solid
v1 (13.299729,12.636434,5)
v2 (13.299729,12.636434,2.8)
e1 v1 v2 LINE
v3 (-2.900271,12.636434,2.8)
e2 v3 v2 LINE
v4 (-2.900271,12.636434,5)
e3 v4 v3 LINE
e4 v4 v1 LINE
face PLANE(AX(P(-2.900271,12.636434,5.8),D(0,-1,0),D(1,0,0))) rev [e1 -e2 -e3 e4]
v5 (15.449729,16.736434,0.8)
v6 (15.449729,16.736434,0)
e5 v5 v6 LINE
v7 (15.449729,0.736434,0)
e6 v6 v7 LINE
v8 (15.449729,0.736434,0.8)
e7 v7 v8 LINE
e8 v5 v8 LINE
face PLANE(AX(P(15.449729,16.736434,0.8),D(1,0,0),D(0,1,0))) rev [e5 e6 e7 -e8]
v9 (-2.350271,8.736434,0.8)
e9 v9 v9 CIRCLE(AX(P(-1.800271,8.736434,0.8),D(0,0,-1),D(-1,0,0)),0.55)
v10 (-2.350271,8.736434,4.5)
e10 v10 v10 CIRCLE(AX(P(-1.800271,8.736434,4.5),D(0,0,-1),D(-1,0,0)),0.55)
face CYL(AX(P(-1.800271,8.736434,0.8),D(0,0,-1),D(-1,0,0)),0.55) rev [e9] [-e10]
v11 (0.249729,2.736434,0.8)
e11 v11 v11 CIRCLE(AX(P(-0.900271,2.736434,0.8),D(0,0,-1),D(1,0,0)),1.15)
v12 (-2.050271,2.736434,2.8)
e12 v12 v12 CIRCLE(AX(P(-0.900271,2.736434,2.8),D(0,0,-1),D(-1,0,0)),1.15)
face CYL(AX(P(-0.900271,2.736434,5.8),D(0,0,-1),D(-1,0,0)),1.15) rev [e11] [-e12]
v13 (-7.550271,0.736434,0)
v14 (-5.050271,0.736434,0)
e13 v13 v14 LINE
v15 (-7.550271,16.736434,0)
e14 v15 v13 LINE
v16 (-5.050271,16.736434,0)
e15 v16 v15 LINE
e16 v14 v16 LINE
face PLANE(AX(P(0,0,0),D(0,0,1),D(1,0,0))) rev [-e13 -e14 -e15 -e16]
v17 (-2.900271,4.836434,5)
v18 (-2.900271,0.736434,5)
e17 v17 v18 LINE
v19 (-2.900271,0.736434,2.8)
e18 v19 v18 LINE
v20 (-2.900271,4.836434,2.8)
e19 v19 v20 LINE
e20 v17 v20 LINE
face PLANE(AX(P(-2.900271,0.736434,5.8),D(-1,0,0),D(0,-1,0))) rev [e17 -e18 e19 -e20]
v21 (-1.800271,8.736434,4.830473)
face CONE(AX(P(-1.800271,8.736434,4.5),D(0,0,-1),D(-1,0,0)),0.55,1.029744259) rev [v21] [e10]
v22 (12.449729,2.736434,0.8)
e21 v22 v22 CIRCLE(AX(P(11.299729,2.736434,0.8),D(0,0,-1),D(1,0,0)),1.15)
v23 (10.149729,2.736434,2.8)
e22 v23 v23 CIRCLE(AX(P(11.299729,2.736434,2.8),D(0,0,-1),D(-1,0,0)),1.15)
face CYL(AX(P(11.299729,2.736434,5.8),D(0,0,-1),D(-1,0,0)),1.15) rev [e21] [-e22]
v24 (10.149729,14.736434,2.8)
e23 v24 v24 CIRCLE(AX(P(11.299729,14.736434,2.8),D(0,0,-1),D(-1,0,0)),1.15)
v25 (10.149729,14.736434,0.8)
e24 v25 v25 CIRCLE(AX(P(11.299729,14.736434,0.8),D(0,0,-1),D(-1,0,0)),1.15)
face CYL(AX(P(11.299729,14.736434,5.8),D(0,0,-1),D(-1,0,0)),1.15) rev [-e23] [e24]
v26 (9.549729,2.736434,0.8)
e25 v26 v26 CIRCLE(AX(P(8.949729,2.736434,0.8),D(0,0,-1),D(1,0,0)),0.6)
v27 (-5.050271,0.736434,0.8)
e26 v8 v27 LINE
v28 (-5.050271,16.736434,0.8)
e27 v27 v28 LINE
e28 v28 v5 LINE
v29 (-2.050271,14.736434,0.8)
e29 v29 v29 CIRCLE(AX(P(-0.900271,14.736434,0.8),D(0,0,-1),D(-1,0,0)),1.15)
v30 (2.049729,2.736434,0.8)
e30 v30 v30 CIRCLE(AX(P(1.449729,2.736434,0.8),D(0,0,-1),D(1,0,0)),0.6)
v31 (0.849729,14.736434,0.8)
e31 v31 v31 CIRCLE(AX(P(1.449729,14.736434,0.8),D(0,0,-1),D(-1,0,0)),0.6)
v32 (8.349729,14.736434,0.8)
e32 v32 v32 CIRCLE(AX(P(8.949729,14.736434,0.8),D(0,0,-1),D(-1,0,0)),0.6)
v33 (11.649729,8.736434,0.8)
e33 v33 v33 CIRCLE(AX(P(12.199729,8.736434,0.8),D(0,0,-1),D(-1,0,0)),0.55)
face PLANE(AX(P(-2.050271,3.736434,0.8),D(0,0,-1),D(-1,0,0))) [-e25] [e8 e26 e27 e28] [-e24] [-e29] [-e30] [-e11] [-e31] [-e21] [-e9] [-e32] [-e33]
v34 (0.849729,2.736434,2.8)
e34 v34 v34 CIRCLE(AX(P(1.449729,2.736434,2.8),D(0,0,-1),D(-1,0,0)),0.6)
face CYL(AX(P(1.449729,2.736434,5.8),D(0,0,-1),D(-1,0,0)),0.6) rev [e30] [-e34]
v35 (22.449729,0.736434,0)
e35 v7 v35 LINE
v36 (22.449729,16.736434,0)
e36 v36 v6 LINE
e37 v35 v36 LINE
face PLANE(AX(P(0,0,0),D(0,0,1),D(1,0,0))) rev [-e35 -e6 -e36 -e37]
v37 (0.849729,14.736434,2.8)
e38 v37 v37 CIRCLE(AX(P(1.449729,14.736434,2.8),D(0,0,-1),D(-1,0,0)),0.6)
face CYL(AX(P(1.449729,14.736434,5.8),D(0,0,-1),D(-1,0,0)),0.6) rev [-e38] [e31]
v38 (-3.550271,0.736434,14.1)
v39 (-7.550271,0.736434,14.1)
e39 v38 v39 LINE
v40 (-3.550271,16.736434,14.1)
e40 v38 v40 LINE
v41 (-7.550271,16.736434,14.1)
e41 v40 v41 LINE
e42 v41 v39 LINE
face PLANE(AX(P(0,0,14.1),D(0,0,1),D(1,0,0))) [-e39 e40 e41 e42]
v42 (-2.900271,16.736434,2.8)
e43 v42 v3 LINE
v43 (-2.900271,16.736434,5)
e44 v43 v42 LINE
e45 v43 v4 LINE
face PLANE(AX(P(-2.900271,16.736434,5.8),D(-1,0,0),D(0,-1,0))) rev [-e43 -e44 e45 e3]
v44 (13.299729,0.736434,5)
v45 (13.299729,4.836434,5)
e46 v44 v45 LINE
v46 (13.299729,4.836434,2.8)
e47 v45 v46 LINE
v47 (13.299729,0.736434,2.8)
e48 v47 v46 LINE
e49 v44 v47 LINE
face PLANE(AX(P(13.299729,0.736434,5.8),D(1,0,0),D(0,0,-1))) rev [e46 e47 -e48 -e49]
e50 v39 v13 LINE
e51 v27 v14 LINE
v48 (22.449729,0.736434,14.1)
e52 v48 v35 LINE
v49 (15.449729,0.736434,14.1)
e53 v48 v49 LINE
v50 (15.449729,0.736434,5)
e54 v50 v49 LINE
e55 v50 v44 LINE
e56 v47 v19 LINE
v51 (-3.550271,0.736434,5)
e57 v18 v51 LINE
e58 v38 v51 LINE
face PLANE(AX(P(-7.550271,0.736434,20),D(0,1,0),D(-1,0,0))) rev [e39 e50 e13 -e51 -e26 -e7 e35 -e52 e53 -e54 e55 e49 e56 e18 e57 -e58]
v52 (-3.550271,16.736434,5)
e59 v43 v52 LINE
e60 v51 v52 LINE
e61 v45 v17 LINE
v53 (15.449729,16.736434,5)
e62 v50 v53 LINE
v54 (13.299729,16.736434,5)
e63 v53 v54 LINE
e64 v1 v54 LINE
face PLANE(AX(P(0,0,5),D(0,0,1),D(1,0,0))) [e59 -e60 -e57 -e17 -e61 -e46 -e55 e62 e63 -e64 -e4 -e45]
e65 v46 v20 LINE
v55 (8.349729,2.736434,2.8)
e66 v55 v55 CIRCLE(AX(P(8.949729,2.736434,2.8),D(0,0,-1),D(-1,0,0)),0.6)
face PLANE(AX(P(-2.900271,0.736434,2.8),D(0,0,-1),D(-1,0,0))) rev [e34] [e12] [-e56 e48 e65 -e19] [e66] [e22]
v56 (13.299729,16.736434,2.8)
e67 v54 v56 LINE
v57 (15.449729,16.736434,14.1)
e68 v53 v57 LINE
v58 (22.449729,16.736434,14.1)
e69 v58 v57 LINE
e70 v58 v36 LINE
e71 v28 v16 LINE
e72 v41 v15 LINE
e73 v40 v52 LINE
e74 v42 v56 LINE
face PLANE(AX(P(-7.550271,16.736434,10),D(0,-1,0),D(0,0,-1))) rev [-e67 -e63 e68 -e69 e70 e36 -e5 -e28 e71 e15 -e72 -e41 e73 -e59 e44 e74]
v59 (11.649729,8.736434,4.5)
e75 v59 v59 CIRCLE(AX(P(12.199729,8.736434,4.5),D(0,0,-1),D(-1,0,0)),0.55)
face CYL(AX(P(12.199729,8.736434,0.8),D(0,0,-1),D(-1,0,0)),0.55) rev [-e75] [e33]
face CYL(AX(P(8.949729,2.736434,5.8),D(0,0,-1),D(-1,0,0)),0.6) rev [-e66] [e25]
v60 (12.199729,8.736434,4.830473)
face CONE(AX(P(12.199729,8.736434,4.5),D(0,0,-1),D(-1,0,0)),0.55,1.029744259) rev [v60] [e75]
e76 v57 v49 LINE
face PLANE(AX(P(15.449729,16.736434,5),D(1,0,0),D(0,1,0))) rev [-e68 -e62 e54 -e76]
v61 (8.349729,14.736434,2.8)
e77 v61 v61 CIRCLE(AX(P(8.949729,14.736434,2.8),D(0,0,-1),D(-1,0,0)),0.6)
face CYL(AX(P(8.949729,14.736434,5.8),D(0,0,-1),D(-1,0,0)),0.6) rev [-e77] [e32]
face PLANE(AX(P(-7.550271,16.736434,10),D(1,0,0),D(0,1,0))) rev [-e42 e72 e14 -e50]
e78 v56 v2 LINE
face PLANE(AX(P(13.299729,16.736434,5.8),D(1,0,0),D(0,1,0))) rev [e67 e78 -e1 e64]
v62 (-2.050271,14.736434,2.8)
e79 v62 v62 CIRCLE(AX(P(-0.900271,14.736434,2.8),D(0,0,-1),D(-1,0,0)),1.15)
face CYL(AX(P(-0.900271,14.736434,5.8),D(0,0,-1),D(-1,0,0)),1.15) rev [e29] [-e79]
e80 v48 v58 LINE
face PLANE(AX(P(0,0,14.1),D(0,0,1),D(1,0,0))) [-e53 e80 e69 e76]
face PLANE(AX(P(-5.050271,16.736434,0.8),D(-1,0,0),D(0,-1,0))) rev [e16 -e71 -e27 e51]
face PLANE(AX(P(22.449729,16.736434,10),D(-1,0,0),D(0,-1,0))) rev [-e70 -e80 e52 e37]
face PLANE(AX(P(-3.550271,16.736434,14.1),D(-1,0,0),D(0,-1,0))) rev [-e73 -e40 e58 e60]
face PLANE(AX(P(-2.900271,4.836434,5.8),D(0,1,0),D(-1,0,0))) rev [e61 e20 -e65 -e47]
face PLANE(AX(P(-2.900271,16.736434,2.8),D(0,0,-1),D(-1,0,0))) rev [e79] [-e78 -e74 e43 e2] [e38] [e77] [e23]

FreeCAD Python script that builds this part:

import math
import FreeCAD as App
import Part
import Sketcher

V = App.Vector
Q = App.Units.Quantity

doc = App.newDocument("Part")
body = doc.addObject("PartDesign::Body", "Body")

# Sketch on XY plane
sketch1 = doc.addObject("Sketcher::SketchObject", "Sketch")
body.addObject(sketch1)
sketch1.AttachmentSupport = (doc.XY_Plane, [""])
sketch1.MapMode = "FlatFace"
sketch1.addGeometry(Part.LineSegment(V(-8, 17, 0), V(-8, -11, 0)), False)
sketch1.addGeometry(Part.LineSegment(V(-8, -11, 0), V(22, -11, 0)), False)
sketch1.addGeometry(Part.LineSegment(V(22, -11, 0), V(22, 17, 0)), False)
sketch1.addGeometry(Part.LineSegment(V(22, 17, 0), V(-8, 17, 0)), False)
sketch1.addConstraint(Sketcher.Constraint("Coincident", 0, 2, 1, 1))
sketch1.addConstraint(Sketcher.Constraint("Coincident", 1, 2, 2, 1))
sketch1.addConstraint(Sketcher.Constraint("Coincident", 2, 2, 3, 1))
sketch1.addConstraint(Sketcher.Constraint("Coincident", 3, 2, 0, 1))
sketch1.addConstraint(Sketcher.Constraint("Vertical", 0))
sketch1.addConstraint(Sketcher.Constraint("Horizontal", 1))
sketch1.addConstraint(Sketcher.Constraint("Vertical", 2))
sketch1.addConstraint(Sketcher.Constraint("Horizontal", 3))
sketch1.addConstraint(Sketcher.Constraint("DistanceX", 1, 1, 1, 2, Q("30 mm")))
sketch1.addConstraint(Sketcher.Constraint("DistanceY", 0, 2, 0, 1, Q("28 mm")))
sketch1.addConstraint(Sketcher.Constraint("DistanceX", 0, 2, -1, 1, Q("7.550271 mm")))
sketch1.addConstraint(Sketcher.Constraint("DistanceY", 0, 2, -1, 1, Q("11.263566 mm")))
pad1 = doc.addObject("PartDesign::Pad", "Pad")
body.addObject(pad1)
pad1.Profile = sketch1
pad1.Length = 10

# Sketch on XY plane
sketch2 = doc.addObject("Sketcher::SketchObject", "Sketch001")
body.addObject(sketch2)
sketch2.AttachmentSupport = (doc.XY_Plane, [""])
sketch2.MapMode = "FlatFace"
sketch2.addGeometry(Part.LineSegment(V(-5.1, 16.7, 0), V(15.4, 16.7, 0)), False)
sketch2.addGeometry(Part.LineSegment(V(15.4, 16.7, 0), V(15.4, 3.7, 0)), False)
sketch2.addGeometry(Part.ArcOfCircle(Part.Circle(V(12.4, 3.7, 0), V(0, 0, 1), 3), math.radians(-90), math.radians(0)), False)
sketch2.addGeometry(Part.LineSegment(V(12.4, 0.7, 0), V(-2.1, 0.7, 0)), False)
sketch2.addGeometry(Part.ArcOfCircle(Part.Circle(V(-2.1, 3.7, 0), V(0, 0, 1), 3), math.radians(180), math.radians(270)), False)
sketch2.addGeometry(Part.LineSegment(V(-5.1, 3.7, 0), V(-5.1, 16.7, 0)), False)
sketch2.addConstraint(Sketcher.Constraint("Coincident", 0, 2, 1, 1))
sketch2.addConstraint(Sketcher.Constraint("Tangent", 1, 2, 2, 2))
sketch2.addConstraint(Sketcher.Constraint("Tangent", 2, 1, 3, 1))
sketch2.addConstraint(Sketcher.Constraint("Tangent", 3, 2, 4, 2))
sketch2.addConstraint(Sketcher.Constraint("Tangent", 4, 1, 5, 1))
sketch2.addConstraint(Sketcher.Constraint("Coincident", 5, 2, 0, 1))
sketch2.addConstraint(Sketcher.Constraint("Horizontal", 0))
sketch2.addConstraint(Sketcher.Constraint("Vertical", 1))
sketch2.addConstraint(Sketcher.Constraint("Horizontal", 3))
sketch2.addConstraint(Sketcher.Constraint("Vertical", 5))
sketch2.addConstraint(Sketcher.Constraint("Equal", 2, 4))
sketch2.addConstraint(Sketcher.Constraint("Radius", 2, Q("3 mm")))
sketch2.addConstraint(Sketcher.Constraint("DistanceY", 1, 2, 1, 1, Q("13 mm")))
sketch2.addConstraint(Sketcher.Constraint("DistanceX", 0, 1, 0, 2, Q("20.5 mm")))
sketch2.addConstraint(Sketcher.Constraint("DistanceX", -1, 1, 2, 3, Q("12.449729 mm")))
sketch2.addConstraint(Sketcher.Constraint("DistanceY", -1, 1, 2, 3, Q("3.736434 mm")))
pocket1 = doc.addObject("PartDesign::Pocket", "Pocket")
body.addObject(pocket1)
pocket1.Profile = sketch2
pocket1.Length = 0.8
pocket1.Reversed = True

# Sketch on XY plane
sketch3 = doc.addObject("Sketcher::SketchObject", "Sketch002")
body.addObject(sketch3)
sketch3.AttachmentSupport = (doc.XY_Plane, [""])
sketch3.MapMode = "FlatFace"
sketch3.AttachmentOffset = App.Placement(V(0, 0, 0.8), App.Rotation())
sketch3.addGeometry(Part.Circle(V(12.2, 8.7, 0), V(0, 0, 1), 0.6), False)
sketch3.addGeometry(Part.Circle(V(-1.8, 8.7, 0), V(0, 0, 1), 0.6), False)
sketch3.addConstraint(Sketcher.Constraint("Equal", 0, 1))
sketch3.addConstraint(Sketcher.Constraint("Horizontal", 0, 3, 1, 3))
sketch3.addConstraint(Sketcher.Constraint("Diameter", 0, Q("1.1 mm")))
sketch3.addConstraint(Sketcher.Constraint("DistanceX", 1, 3, 0, 3, Q("14 mm")))
sketch3.addConstraint(Sketcher.Constraint("DistanceX", -1, 1, 0, 3, Q("12.199729 mm")))
sketch3.addConstraint(Sketcher.Constraint("DistanceY", -1, 1, 0, 3, Q("8.736434 mm")))
doc.recompute()
hole = doc.addObject("PartDesign::Hole", "Hole")
body.addObject(hole)
hole.Profile = sketch3
hole.ThreadType = "None"
hole.Diameter = 1.1
hole.DepthType = "Dimension"
hole.Depth = 3.7
hole.DrillPoint = "Angled"
hole.DrillPointAngle = 118
hole.Reversed = True

# Sketch on XY plane
sketch4 = doc.addObject("Sketcher::SketchObject", "Sketch003")
body.addObject(sketch4)
sketch4.AttachmentSupport = (doc.XY_Plane, [""])
sketch4.MapMode = "FlatFace"
sketch4.addGeometry(Part.LineSegment(V(22.4, -7, 0), V(22.4, -11.3, 0)), False)
sketch4.addGeometry(Part.LineSegment(V(22.4, -11.3, 0), V(-7.6, -11.3, 0)), False)
sketch4.addGeometry(Part.LineSegment(V(-7.6, -11.3, 0), V(-7.6, -7, 0)), False)
sketch4.addGeometry(Part.LineSegment(V(-7.6, -7, 0), V(22.4, -7, 0)), False)
sketch4.addConstraint(Sketcher.Constraint("Coincident", 0, 2, 1, 1))
sketch4.addConstraint(Sketcher.Constraint("Coincident", 1, 2, 2, 1))
sketch4.addConstraint(Sketcher.Constraint("Coincident", 2, 2, 3, 1))
sketch4.addConstraint(Sketcher.Constraint("Coincident", 3, 2, 0, 1))
sketch4.addConstraint(Sketcher.Constraint("Vertical", 0))
sketch4.addConstraint(Sketcher.Constraint("Horizontal", 1))
sketch4.addConstraint(Sketcher.Constraint("Vertical", 2))
sketch4.addConstraint(Sketcher.Constraint("Horizontal", 3))
sketch4.addConstraint(Sketcher.Constraint("DistanceX", 1, 2, 1, 1, Q("30 mm")))
sketch4.addConstraint(Sketcher.Constraint("DistanceY", 0, 2, 0, 1, Q("4.25 mm")))
sketch4.addConstraint(Sketcher.Constraint("DistanceX", -1, 1, 0, 2, Q("22.449729 mm")))
sketch4.addConstraint(Sketcher.Constraint("DistanceY", 0, 2, -1, 1, Q("11.263566 mm")))
pocket2 = doc.addObject("PartDesign::Pocket", "Pocket001")
body.addObject(pocket2)
pocket2.Profile = sketch4
pocket2.Length = 10
pocket2.Reversed = True

# Sketch on XY plane
sketch5 = doc.addObject("Sketcher::SketchObject", "Sketch004")
body.addObject(sketch5)
sketch5.AttachmentSupport = (doc.XY_Plane, [""])
sketch5.MapMode = "FlatFace"
sketch5.AttachmentOffset = App.Placement(V(0, 0, 10), App.Rotation())
sketch5.addGeometry(Part.LineSegment(V(-8, 17, 0), V(-8, -7, 0)), False)
sketch5.addGeometry(Part.LineSegment(V(-8, -7, 0), V(15, -7, 0)), False)
sketch5.addGeometry(Part.LineSegment(V(15, -7, 0), V(15, 17, 0)), False)
sketch5.addGeometry(Part.LineSegment(V(15, 17, 0), V(-8, 17, 0)), False)
sketch5.addConstraint(Sketcher.Constraint("Coincident", 0, 2, 1, 1))
sketch5.addConstraint(Sketcher.Constraint("Coincident", 1, 2, 2, 1))
sketch5.addConstraint(Sketcher.Constraint("Coincident", 2, 2, 3, 1))
sketch5.addConstraint(Sketcher.Constraint("Coincident", 3, 2, 0, 1))
sketch5.addConstraint(Sketcher.Constraint("Vertical", 0))
sketch5.addConstraint(Sketcher.Constraint("Horizontal", 1))
sketch5.addConstraint(Sketcher.Constraint("Vertical", 2))
sketch5.addConstraint(Sketcher.Constraint("Horizontal", 3))
sketch5.addConstraint(Sketcher.Constraint("DistanceX", 1, 1, 1, 2, Q("23 mm")))
sketch5.addConstraint(Sketcher.Constraint("DistanceY", 0, 2, 0, 1, Q("23.75 mm")))
sketch5.addConstraint(Sketcher.Constraint("DistanceX", 0, 2, -1, 1, Q("7.550271 mm")))
sketch5.addConstraint(Sketcher.Constraint("DistanceY", 0, 2, -1, 1, Q("7.013566 mm")))
pocket3 = doc.addObject("PartDesign::Pocket", "Pocket002")
body.addObject(pocket3)
pocket3.Profile = sketch5
pocket3.Length = 5

# Sketch on XY plane
sketch6 = doc.addObject("Sketcher::SketchObject", "Sketch005")
body.addObject(sketch6)
sketch6.AttachmentSupport = (doc.XY_Plane, [""])
sketch6.MapMode = "FlatFace"
sketch6.AttachmentOffset = App.Placement(V(0, 0, 5), App.Rotation())
sketch6.addGeometry(Part.LineSegment(V(-7.6, 16.7, 0), V(-7.6, -7, 0)), False)
sketch6.addGeometry(Part.LineSegment(V(-7.6, -7, 0), V(-3.6, -7, 0)), False)
sketch6.addGeometry(Part.LineSegment(V(-3.6, -7, 0), V(-3.6, 16.7, 0)), False)
sketch6.addGeometry(Part.LineSegment(V(-3.6, 16.7, 0), V(-7.6, 16.7, 0)), False)
sketch6.addConstraint(Sketcher.Constraint("Coincident", 0, 2, 1, 1))
sketch6.addConstraint(Sketcher.Constraint("Coincident", 1, 2, 2, 1))
sketch6.addConstraint(Sketcher.Constraint("Coincident", 2, 2, 3, 1))
sketch6.addConstraint(Sketcher.Constraint("Coincident", 3, 2, 0, 1))
sketch6.addConstraint(Sketcher.Constraint("Vertical", 0))
sketch6.addConstraint(Sketcher.Constraint("Horizontal", 1))
sketch6.addConstraint(Sketcher.Constraint("Vertical", 2))
sketch6.addConstraint(Sketcher.Constraint("Horizontal", 3))
sketch6.addConstraint(Sketcher.Constraint("DistanceX", 1, 1, 1, 2, Q("4 mm")))
sketch6.addConstraint(Sketcher.Constraint("DistanceY", 0, 2, 0, 1, Q("23.75 mm")))
sketch6.addConstraint(Sketcher.Constraint("DistanceX", 0, 2, -1, 1, Q("7.550271 mm")))
sketch6.addConstraint(Sketcher.Constraint("DistanceY", 0, 2, -1, 1, Q("7.013566 mm")))
pad2 = doc.addObject("PartDesign::Pad", "Pad001")
body.addObject(pad2)
pad2.Profile = sketch6
pad2.Length = 9.1

# Sketch on XY plane
sketch7 = doc.addObject("Sketcher::SketchObject", "Sketch006")
body.addObject(sketch7)
sketch7.AttachmentSupport = (doc.XY_Plane, [""])
sketch7.MapMode = "FlatFace"
sketch7.AttachmentOffset = App.Placement(V(0, 0, 10), App.Rotation())
sketch7.addGeometry(Part.LineSegment(V(15, 17, 0), V(15, -7, 0)), False)
sketch7.addGeometry(Part.LineSegment(V(15, -7, 0), V(22, -7, 0)), False)
sketch7.addGeometry(Part.LineSegment(V(22, -7, 0), V(22, 17, 0)), False)
sketch7.addGeometry(Part.LineSegment(V(22, 17, 0), V(15, 17, 0)), False)
sketch7.addConstraint(Sketcher.Constraint("Coincident", 0, 2, 1, 1))
sketch7.addConstraint(Sketcher.Constraint("Coincident", 1, 2, 2, 1))
sketch7.addConstraint(Sketcher.Constraint("Coincident", 2, 2, 3, 1))
sketch7.addConstraint(Sketcher.Constraint("Coincident", 3, 2, 0, 1))
sketch7.addConstraint(Sketcher.Constraint("Vertical", 0))
sketch7.addConstraint(Sketcher.Constraint("Horizontal", 1))
sketch7.addConstraint(Sketcher.Constraint("Vertical", 2))
sketch7.addConstraint(Sketcher.Constraint("Horizontal", 3))
sketch7.addConstraint(Sketcher.Constraint("DistanceX", 1, 1, 1, 2, Q("7 mm")))
sketch7.addConstraint(Sketcher.Constraint("DistanceY", 0, 2, 0, 1, Q("23.75 mm")))
sketch7.addConstraint(Sketcher.Constraint("DistanceX", -1, 1, 0, 2, Q("15.449729 mm")))
sketch7.addConstraint(Sketcher.Constraint("DistanceY", 0, 2, -1, 1, Q("7.013566 mm")))
pad3 = doc.addObject("PartDesign::Pad", "Pad002")
body.addObject(pad3)
pad3.Profile = sketch7
pad3.Length = 4.1

# Sketch on XY plane
sketch8 = doc.addObject("Sketcher::SketchObject", "Sketch007")
body.addObject(sketch8)
sketch8.AttachmentSupport = (doc.XY_Plane, [""])
sketch8.MapMode = "FlatFace"
sketch8.addGeometry(Part.LineSegment(V(22, 1, 0), V(22, -7, 0)), False)
sketch8.addGeometry(Part.LineSegment(V(22, -7, 0), V(-8, -7, 0)), False)
sketch8.addGeometry(Part.LineSegment(V(-8, -7, 0), V(-8, 1, 0)), False)
sketch8.addGeometry(Part.LineSegment(V(-8, 1, 0), V(22, 1, 0)), False)
sketch8.addConstraint(Sketcher.Constraint("Coincident", 0, 2, 1, 1))
sketch8.addConstraint(Sketcher.Constraint("Coincident", 1, 2, 2, 1))
sketch8.addConstraint(Sketcher.Constraint("Coincident", 2, 2, 3, 1))
sketch8.addConstraint(Sketcher.Constraint("Coincident", 3, 2, 0, 1))
sketch8.addConstraint(Sketcher.Constraint("Vertical", 0))
sketch8.addConstraint(Sketcher.Constraint("Horizontal", 1))
sketch8.addConstraint(Sketcher.Constraint("Vertical", 2))
sketch8.addConstraint(Sketcher.Constraint("Horizontal", 3))
sketch8.addConstraint(Sketcher.Constraint("DistanceX", 1, 2, 1, 1, Q("30 mm")))
sketch8.addConstraint(Sketcher.Constraint("DistanceY", 0, 2, 0, 1, Q("7.75 mm")))
sketch8.addConstraint(Sketcher.Constraint("DistanceX", -1, 1, 0, 2, Q("22.449729 mm")))
sketch8.addConstraint(Sketcher.Constraint("DistanceY", 0, 2, -1, 1, Q("7.013566 mm")))
pocket4 = doc.addObject("PartDesign::Pocket", "Pocket003")
body.addObject(pocket4)
pocket4.Profile = sketch8
pocket4.Length = 20
pocket4.Reversed = True

# Sketch on XZ plane
sketch9 = doc.addObject("Sketcher::SketchObject", "Sketch008")
body.addObject(sketch9)
sketch9.AttachmentSupport = (doc.XZ_Plane, [""])
sketch9.MapMode = "FlatFace"
sketch9.AttachmentOffset = App.Placement(V(0, 0, -0.736434), App.Rotation())
sketch9.addGeometry(Part.LineSegment(V(-5.1, 0.8, 0), V(-5.1, 0, 0)), False)
sketch9.addGeometry(Part.LineSegment(V(-5.1, 0, 0), V(-2.1, 0, 0)), False)
sketch9.addGeometry(Part.LineSegment(V(-2.1, 0, 0), V(-2.1, 0.8, 0)), False)
sketch9.addGeometry(Part.LineSegment(V(-2.1, 0.8, 0), V(-5.1, 0.8, 0)), False)
sketch9.addGeometry(Part.LineSegment(V(12.4, 0.8, 0), V(12.4, 0, 0)), False)
sketch9.addGeometry(Part.LineSegment(V(12.4, 0, 0), V(15.4, 0, 0)), False)
sketch9.addGeometry(Part.LineSegment(V(15.4, 0, 0), V(15.4, 0.8, 0)), False)
sketch9.addGeometry(Part.LineSegment(V(15.4, 0.8, 0), V(12.4, 0.8, 0)), False)
sketch9.addConstraint(Sketcher.Constraint("Coincident", 0, 2, 1, 1))
sketch9.addConstraint(Sketcher.Constraint("Coincident", 1, 2, 2, 1))
sketch9.addConstraint(Sketcher.Constraint("Coincident", 2, 2, 3, 1))
sketch9.addConstraint(Sketcher.Constraint("Coincident", 3, 2, 0, 1))
sketch9.addConstraint(Sketcher.Constraint("Coincident", 4, 2, 5, 1))
sketch9.addConstraint(Sketcher.Constraint("Coincident", 5, 2, 6, 1))
sketch9.addConstraint(Sketcher.Constraint("Coincident", 6, 2, 7, 1))
sketch9.addConstraint(Sketcher.Constraint("Coincident", 7, 2, 4, 1))
sketch9.addConstraint(Sketcher.Constraint("Vertical", 0))
sketch9.addConstraint(Sketcher.Constraint("Horizontal", 1))
sketch9.addConstraint(Sketcher.Constraint("Vertical", 2))
sketch9.addConstraint(Sketcher.Constraint("Horizontal", 3))
sketch9.addConstraint(Sketcher.Constraint("Vertical", 4))
sketch9.addConstraint(Sketcher.Constraint("Horizontal", 5))
sketch9.addConstraint(Sketcher.Constraint("Vertical", 6))
sketch9.addConstraint(Sketcher.Constraint("Horizontal", 7))
sketch9.addConstraint(Sketcher.Constraint("PointOnObject", 0, 2, -1))
sketch9.addConstraint(Sketcher.Constraint("PointOnObject", 4, 2, -1))
sketch9.addConstraint(Sketcher.Constraint("Horizontal", 3, 2, 6, 2))
sketch9.addConstraint(Sketcher.Constraint("Equal", 3, 5))
sketch9.addConstraint(Sketcher.Constraint("DistanceX", 1, 1, 1, 2, Q("3 mm")))
sketch9.addConstraint(Sketcher.Constraint("DistanceY", 0, 2, 0, 1, Q("0.8 mm")))
sketch9.addConstraint(Sketcher.Constraint("DistanceX", 1, 2, 4, 2, Q("14.5 mm")))
sketch9.addConstraint(Sketcher.Constraint("DistanceX", 0, 2, -1, 1, Q("5.050271 mm")))
pocket5 = doc.addObject("PartDesign::Pocket", "Pocket004")
body.addObject(pocket5)
pocket5.Profile = sketch9
pocket5.Length = 10

# Sketch on XY plane
sketch10 = doc.addObject("Sketcher::SketchObject", "Sketch009")
body.addObject(sketch10)
sketch10.AttachmentSupport = (doc.XY_Plane, [""])
sketch10.MapMode = "FlatFace"
sketch10.AttachmentOffset = App.Placement(V(0, 0, 0.8), App.Rotation())
sketch10.addGeometry(Part.LineSegment(V(13.3, 16.7, 0), V(13.3, 12.6, 0)), False)
sketch10.addGeometry(Part.LineSegment(V(13.3, 12.6, 0), V(-2.9, 12.6, 0)), False)
sketch10.addGeometry(Part.LineSegment(V(-2.9, 12.6, 0), V(-2.9, 16.7, 0)), False)
sketch10.addGeometry(Part.LineSegment(V(-2.9, 16.7, 0), V(13.3, 16.7, 0)), False)
sketch10.addGeometry(Part.LineSegment(V(13.3, 4.8, 0), V(13.3, 0.7, 0)), False)
sketch10.addGeometry(Part.LineSegment(V(13.3, 0.7, 0), V(-2.9, 0.7, 0)), False)
sketch10.addGeometry(Part.LineSegment(V(-2.9, 0.7, 0), V(-2.9, 4.8, 0)), False)
sketch10.addGeometry(Part.LineSegment(V(-2.9, 4.8, 0), V(13.3, 4.8, 0)), False)
sketch10.addConstraint(Sketcher.Constraint("Coincident", 0, 2, 1, 1))
sketch10.addConstraint(Sketcher.Constraint("Coincident", 1, 2, 2, 1))
sketch10.addConstraint(Sketcher.Constraint("Coincident", 2, 2, 3, 1))
sketch10.addConstraint(Sketcher.Constraint("Coincident", 3, 2, 0, 1))
sketch10.addConstraint(Sketcher.Constraint("Coincident", 4, 2, 5, 1))
sketch10.addConstraint(Sketcher.Constraint("Coincident", 5, 2, 6, 1))
sketch10.addConstraint(Sketcher.Constraint("Coincident", 6, 2, 7, 1))
sketch10.addConstraint(Sketcher.Constraint("Coincident", 7, 2, 4, 1))
sketch10.addConstraint(Sketcher.Constraint("Vertical", 0))
sketch10.addConstraint(Sketcher.Constraint("Horizontal", 1))
sketch10.addConstraint(Sketcher.Constraint("Vertical", 2))
sketch10.addConstraint(Sketcher.Constraint("Horizontal", 3))
sketch10.addConstraint(Sketcher.Constraint("Vertical", 4))
sketch10.addConstraint(Sketcher.Constraint("Horizontal", 5))
sketch10.addConstraint(Sketcher.Constraint("Vertical", 6))
sketch10.addConstraint(Sketcher.Constraint("Horizontal", 7))
sketch10.addConstraint(Sketcher.Constraint("Vertical", 3, 2, 4, 2))
sketch10.addConstraint(Sketcher.Constraint("Vertical", 2, 2, 5, 2))
sketch10.addConstraint(Sketcher.Constraint("Equal", 2, 4))
sketch10.addConstraint(Sketcher.Constraint("DistanceX", 1, 2, 1, 1, Q("16.2 mm")))
sketch10.addConstraint(Sketcher.Constraint("DistanceY", 0, 2, 0, 1, Q("4.1 mm")))
sketch10.addConstraint(Sketcher.Constraint("DistanceY", 4, 2, 3, 2, Q("16 mm")))
sketch10.addConstraint(Sketcher.Constraint("DistanceX", -1, 1, 0, 2, Q("13.299729 mm")))
sketch10.addConstraint(Sketcher.Constraint("DistanceY", -1, 1, 0, 2, Q("12.636434 mm")))
pocket6 = doc.addObject("PartDesign::Pocket", "Pocket005")
body.addObject(pocket6)
pocket6.Profile = sketch10
pocket6.Length = 5
pocket6.Reversed = True

# Sketch on XZ plane
sketch11 = doc.addObject("Sketcher::SketchObject", "Sketch010")
body.addObject(sketch11)
sketch11.AttachmentSupport = (doc.XZ_Plane, [""])
sketch11.MapMode = "FlatFace"
sketch11.AttachmentOffset = App.Placement(V(0, 0, -12.636434), App.Rotation())
sketch11.addGeometry(Part.LineSegment(V(-2.9, 0.8, 0), V(-2.9, 2.8, 0)), False)
sketch11.addGeometry(Part.LineSegment(V(-2.9, 2.8, 0), V(13.3, 2.8, 0)), False)
sketch11.addGeometry(Part.LineSegment(V(13.3, 2.8, 0), V(13.3, 0.8, 0)), False)
sketch11.addGeometry(Part.LineSegment(V(13.3, 0.8, 0), V(-2.9, 0.8, 0)), False)
sketch11.addConstraint(Sketcher.Constraint("Coincident", 0, 2, 1, 1))
sketch11.addConstraint(Sketcher.Constraint("Coincident", 1, 2, 2, 1))
sketch11.addConstraint(Sketcher.Constraint("Coincident", 2, 2, 3, 1))
sketch11.addConstraint(Sketcher.Constraint("Coincident", 3, 2, 0, 1))
sketch11.addConstraint(Sketcher.Constraint("Vertical", 0))
sketch11.addConstraint(Sketcher.Constraint("Horizontal", 1))
sketch11.addConstraint(Sketcher.Constraint("Vertical", 2))
sketch11.addConstraint(Sketcher.Constraint("Horizontal", 3))
sketch11.addConstraint(Sketcher.Constraint("DistanceY", 0, 1, 0, 2, Q("2 mm")))
sketch11.addConstraint(Sketcher.Constraint("DistanceX", 1, 1, 1, 2, Q("16.2 mm")))
sketch11.addConstraint(Sketcher.Constraint("DistanceY", -1, 1, 0, 2, Q("2.8 mm")))
sketch11.addConstraint(Sketcher.Constraint("DistanceX", 0, 2, -1, 1, Q("2.900271 mm")))
pad4 = doc.addObject("PartDesign::Pad", "Pad003")
body.addObject(pad4)
pad4.Profile = sketch11
pad4.Length = 4.1
pad4.Reversed = True

# Sketch on XZ plane
sketch12 = doc.addObject("Sketcher::SketchObject", "Sketch011")
body.addObject(sketch12)
sketch12.AttachmentSupport = (doc.XZ_Plane, [""])
sketch12.MapMode = "FlatFace"
sketch12.AttachmentOffset = App.Placement(V(0, 0, -4.836434), App.Rotation())
sketch12.addGeometry(Part.LineSegment(V(-2.9, 2.8, 0), V(-2.9, 0.8, 0)), False)
sketch12.addGeometry(Part.LineSegment(V(-2.9, 0.8, 0), V(13.3, 0.8, 0)), False)
sketch12.addGeometry(Part.LineSegment(V(13.3, 0.8, 0), V(13.3, 2.8, 0)), False)
sketch12.addGeometry(Part.LineSegment(V(13.3, 2.8, 0), V(-2.9, 2.8, 0)), False)
sketch12.addConstraint(Sketcher.Constraint("Coincident", 0, 2, 1, 1))
sketch12.addConstraint(Sketcher.Constraint("Coincident", 1, 2, 2, 1))
sketch12.addConstraint(Sketcher.Constraint("Coincident", 2, 2, 3, 1))
sketch12.addConstraint(Sketcher.Constraint("Coincident", 3, 2, 0, 1))
sketch12.addConstraint(Sketcher.Constraint("Vertical", 0))
sketch12.addConstraint(Sketcher.Constraint("Horizontal", 1))
sketch12.addConstraint(Sketcher.Constraint("Vertical", 2))
sketch12.addConstraint(Sketcher.Constraint("Horizontal", 3))
sketch12.addConstraint(Sketcher.Constraint("DistanceY", 0, 2, 0, 1, Q("2 mm")))
sketch12.addConstraint(Sketcher.Constraint("DistanceX", 1, 1, 1, 2, Q("16.2 mm")))
sketch12.addConstraint(Sketcher.Constraint("DistanceY", -1, 1, 0, 2, Q("0.8 mm")))
sketch12.addConstraint(Sketcher.Constraint("DistanceX", 0, 2, -1, 1, Q("2.900271 mm")))
pad5 = doc.addObject("PartDesign::Pad", "Pad004")
body.addObject(pad5)
pad5.Profile = sketch12
pad5.Length = 4.1

# Sketch on XY plane
sketch13 = doc.addObject("Sketcher::SketchObject", "Sketch012")
body.addObject(sketch13)
sketch13.AttachmentSupport = (doc.XY_Plane, [""])
sketch13.MapMode = "FlatFace"
sketch13.AttachmentOffset = App.Placement(V(0, 0, 0.8), App.Rotation())
sketch13.addGeometry(Part.Circle(V(-0.9, 14.7, 0), V(0, 0, 1), 1.1), False)
sketch13.addGeometry(Part.Circle(V(11.3, 14.7, 0), V(0, 0, 1), 1.1), False)
sketch13.addGeometry(Part.Circle(V(8.9, 2.7, 0), V(0, 0, 1), 0.6), False)
sketch13.addGeometry(Part.Circle(V(1.4, 14.7, 0), V(0, 0, 1), 0.6), False)
sketch13.addGeometry(Part.Circle(V(8.9, 14.7, 0), V(0, 0, 1), 0.6), False)
sketch13.addGeometry(Part.Circle(V(1.4, 2.7, 0), V(0, 0, 1), 0.6), False)
sketch13.addGeometry(Part.Circle(V(11.3, 2.7, 0), V(0, 0, 1), 1.1), False)
sketch13.addGeometry(Part.Circle(V(-0.9, 2.7, 0), V(0, 0, 1), 1.1), False)
sketch13.addConstraint(Sketcher.Constraint("Equal", 0, 1))
sketch13.addConstraint(Sketcher.Constraint("Equal", 2, 3))
sketch13.addConstraint(Sketcher.Constraint("Equal", 3, 4))
sketch13.addConstraint(Sketcher.Constraint("Equal", 4, 5))
sketch13.addConstraint(Sketcher.Constraint("Equal", 1, 6))
sketch13.addConstraint(Sketcher.Constraint("Equal", 6, 7))
sketch13.addConstraint(Sketcher.Constraint("Horizontal", 0, 3, 1, 3))
sketch13.addConstraint(Sketcher.Constraint("Horizontal", 1, 3, 3, 3))
sketch13.addConstraint(Sketcher.Constraint("Horizontal", 3, 3, 4, 3))
sketch13.addConstraint(Sketcher.Constraint("Horizontal", 2, 3, 5, 3))
sketch13.addConstraint(Sketcher.Constraint("Horizontal", 5, 3, 6, 3))
sketch13.addConstraint(Sketcher.Constraint("Horizontal", 6, 3, 7, 3))
sketch13.addConstraint(Sketcher.Constraint("Vertical", 2, 3, 4, 3))
sketch13.addConstraint(Sketcher.Constraint("Vertical", 3, 3, 5, 3))
sketch13.addConstraint(Sketcher.Constraint("Vertical", 1, 3, 6, 3))
sketch13.addConstraint(Sketcher.Constraint("Vertical", 0, 3, 7, 3))
sketch13.addConstraint(Sketcher.Constraint("Diameter", 0, Q("2.3 mm")))
sketch13.addConstraint(Sketcher.Constraint("Diameter", 2, Q("1.2 mm")))
sketch13.addConstraint(Sketcher.Constraint("DistanceY", 2, 3, 1, 3, Q("12 mm")))
sketch13.addConstraint(Sketcher.Constraint("DistanceX", 0, 3, 1, 3, Q("12.2 mm")))
sketch13.addConstraint(Sketcher.Constraint("DistanceX", 3, 3, 2, 3, Q("7.5 mm")))
sketch13.addConstraint(Sketcher.Constraint("DistanceX", 2, 3, 1, 3, Q("2.35 mm")))
sketch13.addConstraint(Sketcher.Constraint("DistanceX", 0, 3, -1, 1, Q("0.900271 mm")))
sketch13.addConstraint(Sketcher.Constraint("DistanceY", -1, 1, 0, 3, Q("14.736434 mm")))
pocket7 = doc.addObject("PartDesign::Pocket", "Pocket006")
body.addObject(pocket7)
pocket7.Profile = sketch13
pocket7.Length = 5
pocket7.Reversed = True

doc.recompute()
